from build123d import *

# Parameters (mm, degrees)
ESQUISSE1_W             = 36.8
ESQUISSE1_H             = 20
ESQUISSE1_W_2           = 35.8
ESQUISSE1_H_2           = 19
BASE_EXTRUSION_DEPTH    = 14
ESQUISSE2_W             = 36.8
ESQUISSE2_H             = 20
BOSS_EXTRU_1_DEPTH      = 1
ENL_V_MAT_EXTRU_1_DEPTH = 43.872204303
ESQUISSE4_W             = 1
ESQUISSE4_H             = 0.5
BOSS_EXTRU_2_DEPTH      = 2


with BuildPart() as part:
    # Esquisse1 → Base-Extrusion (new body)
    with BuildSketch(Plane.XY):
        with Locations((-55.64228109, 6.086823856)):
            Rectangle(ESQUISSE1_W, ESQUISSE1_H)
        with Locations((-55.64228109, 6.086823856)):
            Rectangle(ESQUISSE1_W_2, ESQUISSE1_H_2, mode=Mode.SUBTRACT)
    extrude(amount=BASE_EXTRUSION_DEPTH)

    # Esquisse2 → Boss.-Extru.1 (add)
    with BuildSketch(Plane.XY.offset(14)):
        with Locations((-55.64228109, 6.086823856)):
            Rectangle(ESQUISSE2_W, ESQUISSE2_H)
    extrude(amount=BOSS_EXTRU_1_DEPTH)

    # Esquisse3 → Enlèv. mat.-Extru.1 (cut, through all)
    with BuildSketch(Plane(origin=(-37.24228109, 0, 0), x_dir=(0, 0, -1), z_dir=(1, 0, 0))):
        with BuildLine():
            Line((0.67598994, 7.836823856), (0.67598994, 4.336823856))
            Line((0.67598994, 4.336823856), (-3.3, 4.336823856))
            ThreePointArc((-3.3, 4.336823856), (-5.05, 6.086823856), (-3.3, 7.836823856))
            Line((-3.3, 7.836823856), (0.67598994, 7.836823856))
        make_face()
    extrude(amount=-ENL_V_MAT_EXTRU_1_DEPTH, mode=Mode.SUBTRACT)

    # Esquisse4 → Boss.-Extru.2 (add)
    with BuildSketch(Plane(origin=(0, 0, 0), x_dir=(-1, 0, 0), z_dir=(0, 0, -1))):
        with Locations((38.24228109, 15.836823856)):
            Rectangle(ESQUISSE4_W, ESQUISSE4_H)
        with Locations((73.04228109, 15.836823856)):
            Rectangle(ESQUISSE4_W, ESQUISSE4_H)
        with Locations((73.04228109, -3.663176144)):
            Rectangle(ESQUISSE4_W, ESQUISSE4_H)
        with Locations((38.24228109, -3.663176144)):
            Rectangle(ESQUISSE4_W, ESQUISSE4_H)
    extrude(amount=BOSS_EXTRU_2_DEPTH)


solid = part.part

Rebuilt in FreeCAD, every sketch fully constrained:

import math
import FreeCAD as App
import Part
import Sketcher
Q = App.Units.Quantity

doc = App.newDocument("Part")
body = doc.addObject("PartDesign::Body", "Body")

# Sketch on XY plane
sketch1 = body.newObject("Sketcher::SketchObject", "Sketch")
sketch1.AttachmentSupport = (doc.getObject("XY_Plane"), [""])
sketch1.MapMode = "FlatFace"
sketch1.addGeometry(Part.LineSegment(App.Vector(-74, 16, 0), App.Vector(-74, -4, 0)), False)
sketch1.addGeometry(Part.LineSegment(App.Vector(-74, -4, 0), App.Vector(-37, -4, 0)), False)
sketch1.addGeometry(Part.LineSegment(App.Vector(-37, -4, 0), App.Vector(-37, 16, 0)), False)
sketch1.addGeometry(Part.LineSegment(App.Vector(-37, 16, 0), App.Vector(-74, 16, 0)), False)
sketch1.addGeometry(Part.LineSegment(App.Vector(-38, -3, 0), App.Vector(-74, -3, 0)), False)
sketch1.addGeometry(Part.LineSegment(App.Vector(-74, -3, 0), App.Vector(-74, 16, 0)), False)
sketch1.addGeometry(Part.LineSegment(App.Vector(-74, 16, 0), App.Vector(-38, 16, 0)), False)
sketch1.addGeometry(Part.LineSegment(App.Vector(-38, 16, 0), App.Vector(-38, -3, 0)), False)
sketch1.addConstraint(Sketcher.Constraint("Coincident", 0, 2, 1, 1))
sketch1.addConstraint(Sketcher.Constraint("Coincident", 1, 2, 2, 1))
sketch1.addConstraint(Sketcher.Constraint("Coincident", 2, 2, 3, 1))
sketch1.addConstraint(Sketcher.Constraint("Coincident", 3, 2, 0, 1))
sketch1.addConstraint(Sketcher.Constraint("Coincident", 4, 2, 5, 1))
sketch1.addConstraint(Sketcher.Constraint("Coincident", 5, 2, 6, 1))
sketch1.addConstraint(Sketcher.Constraint("Coincident", 6, 2, 7, 1))
sketch1.addConstraint(Sketcher.Constraint("Coincident", 7, 2, 4, 1))
sketch1.addConstraint(Sketcher.Constraint("Vertical", 0))
sketch1.addConstraint(Sketcher.Constraint("Horizontal", 1))
sketch1.addConstraint(Sketcher.Constraint("Vertical", 2))
sketch1.addConstraint(Sketcher.Constraint("Horizontal", 3))
sketch1.addConstraint(Sketcher.Constraint("Horizontal", 4))
sketch1.addConstraint(Sketcher.Constraint("Vertical", 5))
sketch1.addConstraint(Sketcher.Constraint("Horizontal", 6))
sketch1.addConstraint(Sketcher.Constraint("Vertical", 7))
sketch1.addConstraint(Sketcher.Constraint("DistanceY", 0, 2, 0, 1, Q("20 mm")))
sketch1.addConstraint(Sketcher.Constraint("DistanceY", 5, 1, 5, 2, Q("19 mm")))
sketch1.addConstraint(Sketcher.Constraint("DistanceX", 1, 1, 1, 2, Q("36.8 mm")))
sketch1.addConstraint(Sketcher.Constraint("DistanceX", 4, 2, 4, 1, Q("35.8 mm")))
sketch1.addConstraint(Sketcher.Constraint("DistanceX", 0, 2, 4, 2, Q("0.5 mm")))
sketch1.addConstraint(Sketcher.Constraint("DistanceY", 0, 2, 4, 2, Q("0.5 mm")))
sketch1.addConstraint(Sketcher.Constraint("DistanceX", 0, 2, -1, 1, Q("74.042281 mm")))
sketch1.addConstraint(Sketcher.Constraint("DistanceY", 0, 2, -1, 1, Q("3.913176 mm")))
pad1 = body.newObject("PartDesign::Pad", "Pad")
pad1.Profile = sketch1
pad1.Length = 14

# Sketch on XY plane
sketch2 = body.newObject("Sketcher::SketchObject", "Sketch001")
sketch2.AttachmentSupport = (doc.getObject("XY_Plane"), [""])
sketch2.MapMode = "FlatFace"
sketch2.AttachmentOffset = App.Placement(App.Vector(0, 0, 14), App.Rotation())
sketch2.addGeometry(Part.LineSegment(App.Vector(-74, 16, 0), App.Vector(-74, -4, 0)), False)
sketch2.addGeometry(Part.LineSegment(App.Vector(-74, -4, 0), App.Vector(-37, -4, 0)), False)
sketch2.addGeometry(Part.LineSegment(App.Vector(-37, -4, 0), App.Vector(-37, 16, 0)), False)
sketch2.addGeometry(Part.LineSegment(App.Vector(-37, 16, 0), App.Vector(-74, 16, 0)), False)
sketch2.addConstraint(Sketcher.Constraint("Coincident", 0, 2, 1, 1))
sketch2.addConstraint(Sketcher.Constraint("Coincident", 1, 2, 2, 1))
sketch2.addConstraint(Sketcher.Constraint("Coincident", 2, 2, 3, 1))
sketch2.addConstraint(Sketcher.Constraint("Coincident", 3, 2, 0, 1))
sketch2.addConstraint(Sketcher.Constraint("Vertical", 0))
sketch2.addConstraint(Sketcher.Constraint("Horizontal", 1))
sketch2.addConstraint(Sketcher.Constraint("Vertical", 2))
sketch2.addConstraint(Sketcher.Constraint("Horizontal", 3))
sketch2.addConstraint(Sketcher.Constraint("DistanceY", 0, 2, 0, 1, Q("20 mm")))
sketch2.addConstraint(Sketcher.Constraint("DistanceX", 1, 1, 1, 2, Q("36.8 mm")))
sketch2.addConstraint(Sketcher.Constraint("DistanceX", 0, 2, -1, 1, Q("74.042281 mm")))
sketch2.addConstraint(Sketcher.Constraint("DistanceY", 0, 2, -1, 1, Q("3.913176 mm")))
pad2 = body.newObject("PartDesign::Pad", "Pad001")
pad2.Profile = sketch2
pad2.Length = 1

# Sketch on YZ plane
sketch3 = body.newObject("Sketcher::SketchObject", "Sketch002")
sketch3.AttachmentSupport = (doc.getObject("YZ_Plane"), [""])
sketch3.MapMode = "FlatFace"
sketch3.AttachmentOffset = App.Placement(App.Vector(0, 0, -37.242281), App.Rotation())
sketch3.addGeometry(Part.LineSegment(App.Vector(4.3, -0.7, 0), App.Vector(7.8, -0.7, 0)), False)
sketch3.addGeometry(Part.LineSegment(App.Vector(7.8, -0.7, 0), App.Vector(7.8, 3.3, 0)), False)
sketch3.addGeometry(Part.ArcOfCircle(Part.Circle(App.Vector(6.1, 3.3, 0), App.Vector(0, 0, 1), 1.8), math.radians(0), math.radians(180)), False)
sketch3.addGeometry(Part.LineSegment(App.Vector(4.3, 3.3, 0), App.Vector(4.3, -0.7, 0)), False)
sketch3.addConstraint(Sketcher.Constraint("Coincident", 0, 2, 1, 1))
sketch3.addConstraint(Sketcher.Constraint("Tangent", 1, 2, 2, 1))
sketch3.addConstraint(Sketcher.Constraint("Tangent", 2, 2, 3, 1))
sketch3.addConstraint(Sketcher.Constraint("Coincident", 3, 2, 0, 1))
sketch3.addConstraint(Sketcher.Constraint("Horizontal", 0))
sketch3.addConstraint(Sketcher.Constraint("Vertical", 1))
sketch3.addConstraint(Sketcher.Constraint("Vertical", 3))
sketch3.addConstraint(Sketcher.Constraint("Radius", 2, Q("1.75 mm")))
sketch3.addConstraint(Sketcher.Constraint("DistanceY", -1, 1, 2, 3, Q("3.3 mm")))
sketch3.addConstraint(Sketcher.Constraint("DistanceY", 1, 1, 1, 2, Q("3.97599 mm")))
sketch3.addConstraint(Sketcher.Constraint("DistanceX", -1, 1, 2, 3, Q("6.086824 mm")))
pocket1 = body.newObject("PartDesign::Pocket", "Pocket")
pocket1.Profile = sketch3
pocket1.Type = "ThroughAll"

# Sketch on XY plane
sketch4 = body.newObject("Sketcher::SketchObject", "Sketch003")
sketch4.AttachmentSupport = (doc.getObject("XY_Plane"), [""])
sketch4.MapMode = "FlatFace"
sketch4.addGeometry(Part.LineSegment(App.Vector(-37.74, 16.09, 0), App.Vector(-37.74, 15.59, 0)), False)
sketch4.addGeometry(Part.LineSegment(App.Vector(-37.74, 15.59, 0), App.Vector(-38.74, 15.59, 0)), False)
sketch4.addGeometry(Part.LineSegment(App.Vector(-38.74, 15.59, 0), App.Vector(-38.74, 16.09, 0)), False)
sketch4.addGeometry(Part.LineSegment(App.Vector(-38.74, 16.09, 0), App.Vector(-37.74, 16.09, 0)), False)
sketch4.addGeometry(Part.LineSegment(App.Vector(-72.54, 16.09, 0), App.Vector(-72.54, 15.59, 0)), False)
sketch4.addGeometry(Part.LineSegment(App.Vector(-72.54, 15.59, 0), App.Vector(-73.54, 15.59, 0)), False)
sketch4.addGeometry(Part.LineSegment(App.Vector(-73.54, 15.59, 0), App.Vector(-73.54, 16.09, 0)), False)
sketch4.addGeometry(Part.LineSegment(App.Vector(-73.54, 16.09, 0), App.Vector(-72.54, 16.09, 0)), False)
sketch4.addGeometry(Part.LineSegment(App.Vector(-72.54, -3.41, 0), App.Vector(-72.54, -3.91, 0)), False)
sketch4.addGeometry(Part.LineSegment(App.Vector(-72.54, -3.91, 0), App.Vector(-73.54, -3.91, 0)), False)
sketch4.addGeometry(Part.LineSegment(App.Vector(-73.54, -3.91, 0), App.Vector(-73.54, -3.41, 0)), False)
sketch4.addGeometry(Part.LineSegment(App.Vector(-73.54, -3.41, 0), App.Vector(-72.54, -3.41, 0)), False)
sketch4.addGeometry(Part.LineSegment(App.Vector(-37.74, -3.41, 0), App.Vector(-37.74, -3.91, 0)), False)
sketch4.addGeometry(Part.LineSegment(App.Vector(-37.74, -3.91, 0), App.Vector(-38.74, -3.91, 0)), False)
sketch4.addGeometry(Part.LineSegment(App.Vector(-38.74, -3.91, 0), App.Vector(-38.74, -3.41, 0)), False)
sketch4.addGeometry(Part.LineSegment(App.Vector(-38.74, -3.41, 0), App.Vector(-37.74, -3.41, 0)), False)
sketch4.addConstraint(Sketcher.Constraint("Coincident", 0, 2, 1, 1))
sketch4.addConstraint(Sketcher.Constraint("Coincident", 1, 2, 2, 1))
sketch4.addConstraint(Sketcher.Constraint("Coincident", 2, 2, 3, 1))
sketch4.addConstraint(Sketcher.Constraint("Coincident", 3, 2, 0, 1))
sketch4.addConstraint(Sketcher.Constraint("Coincident", 4, 2, 5, 1))
sketch4.addConstraint(Sketcher.Constraint("Coincident", 5, 2, 6, 1))
sketch4.addConstraint(Sketcher.Constraint("Coincident", 6, 2, 7, 1))
sketch4.addConstraint(Sketcher.Constraint("Coincident", 7, 2, 4, 1))
sketch4.addConstraint(Sketcher.Constraint("Coincident", 8, 2, 9, 1))
sketch4.addConstraint(Sketcher.Constraint("Coincident", 9, 2, 10, 1))
sketch4.addConstraint(Sketcher.Constraint("Coincident", 10, 2, 11, 1))
sketch4.addConstraint(Sketcher.Constraint("Coincident", 11, 2, 8, 1))
sketch4.addConstraint(Sketcher.Constraint("Coincident", 12, 2, 13, 1))
sketch4.addConstraint(Sketcher.Constraint("Coincident", 13, 2, 14, 1))
sketch4.addConstraint(Sketcher.Constraint("Coincident", 14, 2, 15, 1))
sketch4.addConstraint(Sketcher.Constraint("Coincident", 15, 2, 12, 1))
sketch4.addConstraint(Sketcher.Constraint("Vertical", 0))
sketch4.addConstraint(Sketcher.Constraint("Horizontal", 1))
sketch4.addConstraint(Sketcher.Constraint("Vertical", 2))
sketch4.addConstraint(Sketcher.Constraint("Horizontal", 3))
sketch4.addConstraint(Sketcher.Constraint("Vertical", 4))
sketch4.addConstraint(Sketcher.Constraint("Horizontal", 5))
sketch4.addConstraint(Sketcher.Constraint("Vertical", 6))
sketch4.addConstraint(Sketcher.Constraint("Horizontal", 7))
sketch4.addConstraint(Sketcher.Constraint("Vertical", 8))
sketch4.addConstraint(Sketcher.Constraint("Horizontal", 9))
sketch4.addConstraint(Sketcher.Constraint("Vertical", 10))
sketch4.addConstraint(Sketcher.Constraint("Horizontal", 11))
sketch4.addConstraint(Sketcher.Constraint("Vertical", 12))
sketch4.addConstraint(Sketcher.Constraint("Horizontal", 13))
sketch4.addConstraint(Sketcher.Constraint("Vertical", 14))
sketch4.addConstraint(Sketcher.Constraint("Horizontal", 15))
sketch4.addConstraint(Sketcher.Constraint("Horizontal", 1, 2, 4, 2))
sketch4.addConstraint(Sketcher.Constraint("Horizontal", 3, 2, 6, 2))
sketch4.addConstraint(Sketcher.Constraint("Horizontal", 9, 2, 12, 2))
sketch4.addConstraint(Sketcher.Constraint("Horizontal", 11, 2, 14, 2))
sketch4.addConstraint(Sketcher.Constraint("Vertical", 7, 2, 8, 2))
sketch4.addConstraint(Sketcher.Constraint("Vertical", 6, 2, 9, 2))
sketch4.addConstraint(Sketcher.Constraint("Vertical", 3, 2, 12, 2))
sketch4.addConstraint(Sketcher.Constraint("Vertical", 2, 2, 13, 2))
sketch4.addConstraint(Sketcher.Constraint("Equal", 3, 5))
sketch4.addConstraint(Sketcher.Constraint("Equal", 6, 8))
sketch4.addConstraint(Sketcher.Constraint("DistanceX", 1, 2, 1, 1, Q("1 mm")))
sketch4.addConstraint(Sketcher.Constraint("DistanceY", 0, 2, 0, 1, Q("0.5 mm")))
sketch4.addConstraint(Sketcher.Constraint("DistanceY", 8, 2, 7, 2, Q("20 mm")))
sketch4.addConstraint(Sketcher.Constraint("DistanceX", 4, 2, 1, 2, Q("33.8 mm")))
sketch4.addConstraint(Sketcher.Constraint("DistanceX", 0, 2, -1, 1, Q("37.742281 mm")))
sketch4.addConstraint(Sketcher.Constraint("DistanceY", -1, 1, 0, 2, Q("15.586824 mm")))
pad3 = body.newObject("PartDesign::Pad", "Pad002")
pad3.Profile = sketch4
pad3.Length = 2
pad3.Reversed = True

doc.recompute()
